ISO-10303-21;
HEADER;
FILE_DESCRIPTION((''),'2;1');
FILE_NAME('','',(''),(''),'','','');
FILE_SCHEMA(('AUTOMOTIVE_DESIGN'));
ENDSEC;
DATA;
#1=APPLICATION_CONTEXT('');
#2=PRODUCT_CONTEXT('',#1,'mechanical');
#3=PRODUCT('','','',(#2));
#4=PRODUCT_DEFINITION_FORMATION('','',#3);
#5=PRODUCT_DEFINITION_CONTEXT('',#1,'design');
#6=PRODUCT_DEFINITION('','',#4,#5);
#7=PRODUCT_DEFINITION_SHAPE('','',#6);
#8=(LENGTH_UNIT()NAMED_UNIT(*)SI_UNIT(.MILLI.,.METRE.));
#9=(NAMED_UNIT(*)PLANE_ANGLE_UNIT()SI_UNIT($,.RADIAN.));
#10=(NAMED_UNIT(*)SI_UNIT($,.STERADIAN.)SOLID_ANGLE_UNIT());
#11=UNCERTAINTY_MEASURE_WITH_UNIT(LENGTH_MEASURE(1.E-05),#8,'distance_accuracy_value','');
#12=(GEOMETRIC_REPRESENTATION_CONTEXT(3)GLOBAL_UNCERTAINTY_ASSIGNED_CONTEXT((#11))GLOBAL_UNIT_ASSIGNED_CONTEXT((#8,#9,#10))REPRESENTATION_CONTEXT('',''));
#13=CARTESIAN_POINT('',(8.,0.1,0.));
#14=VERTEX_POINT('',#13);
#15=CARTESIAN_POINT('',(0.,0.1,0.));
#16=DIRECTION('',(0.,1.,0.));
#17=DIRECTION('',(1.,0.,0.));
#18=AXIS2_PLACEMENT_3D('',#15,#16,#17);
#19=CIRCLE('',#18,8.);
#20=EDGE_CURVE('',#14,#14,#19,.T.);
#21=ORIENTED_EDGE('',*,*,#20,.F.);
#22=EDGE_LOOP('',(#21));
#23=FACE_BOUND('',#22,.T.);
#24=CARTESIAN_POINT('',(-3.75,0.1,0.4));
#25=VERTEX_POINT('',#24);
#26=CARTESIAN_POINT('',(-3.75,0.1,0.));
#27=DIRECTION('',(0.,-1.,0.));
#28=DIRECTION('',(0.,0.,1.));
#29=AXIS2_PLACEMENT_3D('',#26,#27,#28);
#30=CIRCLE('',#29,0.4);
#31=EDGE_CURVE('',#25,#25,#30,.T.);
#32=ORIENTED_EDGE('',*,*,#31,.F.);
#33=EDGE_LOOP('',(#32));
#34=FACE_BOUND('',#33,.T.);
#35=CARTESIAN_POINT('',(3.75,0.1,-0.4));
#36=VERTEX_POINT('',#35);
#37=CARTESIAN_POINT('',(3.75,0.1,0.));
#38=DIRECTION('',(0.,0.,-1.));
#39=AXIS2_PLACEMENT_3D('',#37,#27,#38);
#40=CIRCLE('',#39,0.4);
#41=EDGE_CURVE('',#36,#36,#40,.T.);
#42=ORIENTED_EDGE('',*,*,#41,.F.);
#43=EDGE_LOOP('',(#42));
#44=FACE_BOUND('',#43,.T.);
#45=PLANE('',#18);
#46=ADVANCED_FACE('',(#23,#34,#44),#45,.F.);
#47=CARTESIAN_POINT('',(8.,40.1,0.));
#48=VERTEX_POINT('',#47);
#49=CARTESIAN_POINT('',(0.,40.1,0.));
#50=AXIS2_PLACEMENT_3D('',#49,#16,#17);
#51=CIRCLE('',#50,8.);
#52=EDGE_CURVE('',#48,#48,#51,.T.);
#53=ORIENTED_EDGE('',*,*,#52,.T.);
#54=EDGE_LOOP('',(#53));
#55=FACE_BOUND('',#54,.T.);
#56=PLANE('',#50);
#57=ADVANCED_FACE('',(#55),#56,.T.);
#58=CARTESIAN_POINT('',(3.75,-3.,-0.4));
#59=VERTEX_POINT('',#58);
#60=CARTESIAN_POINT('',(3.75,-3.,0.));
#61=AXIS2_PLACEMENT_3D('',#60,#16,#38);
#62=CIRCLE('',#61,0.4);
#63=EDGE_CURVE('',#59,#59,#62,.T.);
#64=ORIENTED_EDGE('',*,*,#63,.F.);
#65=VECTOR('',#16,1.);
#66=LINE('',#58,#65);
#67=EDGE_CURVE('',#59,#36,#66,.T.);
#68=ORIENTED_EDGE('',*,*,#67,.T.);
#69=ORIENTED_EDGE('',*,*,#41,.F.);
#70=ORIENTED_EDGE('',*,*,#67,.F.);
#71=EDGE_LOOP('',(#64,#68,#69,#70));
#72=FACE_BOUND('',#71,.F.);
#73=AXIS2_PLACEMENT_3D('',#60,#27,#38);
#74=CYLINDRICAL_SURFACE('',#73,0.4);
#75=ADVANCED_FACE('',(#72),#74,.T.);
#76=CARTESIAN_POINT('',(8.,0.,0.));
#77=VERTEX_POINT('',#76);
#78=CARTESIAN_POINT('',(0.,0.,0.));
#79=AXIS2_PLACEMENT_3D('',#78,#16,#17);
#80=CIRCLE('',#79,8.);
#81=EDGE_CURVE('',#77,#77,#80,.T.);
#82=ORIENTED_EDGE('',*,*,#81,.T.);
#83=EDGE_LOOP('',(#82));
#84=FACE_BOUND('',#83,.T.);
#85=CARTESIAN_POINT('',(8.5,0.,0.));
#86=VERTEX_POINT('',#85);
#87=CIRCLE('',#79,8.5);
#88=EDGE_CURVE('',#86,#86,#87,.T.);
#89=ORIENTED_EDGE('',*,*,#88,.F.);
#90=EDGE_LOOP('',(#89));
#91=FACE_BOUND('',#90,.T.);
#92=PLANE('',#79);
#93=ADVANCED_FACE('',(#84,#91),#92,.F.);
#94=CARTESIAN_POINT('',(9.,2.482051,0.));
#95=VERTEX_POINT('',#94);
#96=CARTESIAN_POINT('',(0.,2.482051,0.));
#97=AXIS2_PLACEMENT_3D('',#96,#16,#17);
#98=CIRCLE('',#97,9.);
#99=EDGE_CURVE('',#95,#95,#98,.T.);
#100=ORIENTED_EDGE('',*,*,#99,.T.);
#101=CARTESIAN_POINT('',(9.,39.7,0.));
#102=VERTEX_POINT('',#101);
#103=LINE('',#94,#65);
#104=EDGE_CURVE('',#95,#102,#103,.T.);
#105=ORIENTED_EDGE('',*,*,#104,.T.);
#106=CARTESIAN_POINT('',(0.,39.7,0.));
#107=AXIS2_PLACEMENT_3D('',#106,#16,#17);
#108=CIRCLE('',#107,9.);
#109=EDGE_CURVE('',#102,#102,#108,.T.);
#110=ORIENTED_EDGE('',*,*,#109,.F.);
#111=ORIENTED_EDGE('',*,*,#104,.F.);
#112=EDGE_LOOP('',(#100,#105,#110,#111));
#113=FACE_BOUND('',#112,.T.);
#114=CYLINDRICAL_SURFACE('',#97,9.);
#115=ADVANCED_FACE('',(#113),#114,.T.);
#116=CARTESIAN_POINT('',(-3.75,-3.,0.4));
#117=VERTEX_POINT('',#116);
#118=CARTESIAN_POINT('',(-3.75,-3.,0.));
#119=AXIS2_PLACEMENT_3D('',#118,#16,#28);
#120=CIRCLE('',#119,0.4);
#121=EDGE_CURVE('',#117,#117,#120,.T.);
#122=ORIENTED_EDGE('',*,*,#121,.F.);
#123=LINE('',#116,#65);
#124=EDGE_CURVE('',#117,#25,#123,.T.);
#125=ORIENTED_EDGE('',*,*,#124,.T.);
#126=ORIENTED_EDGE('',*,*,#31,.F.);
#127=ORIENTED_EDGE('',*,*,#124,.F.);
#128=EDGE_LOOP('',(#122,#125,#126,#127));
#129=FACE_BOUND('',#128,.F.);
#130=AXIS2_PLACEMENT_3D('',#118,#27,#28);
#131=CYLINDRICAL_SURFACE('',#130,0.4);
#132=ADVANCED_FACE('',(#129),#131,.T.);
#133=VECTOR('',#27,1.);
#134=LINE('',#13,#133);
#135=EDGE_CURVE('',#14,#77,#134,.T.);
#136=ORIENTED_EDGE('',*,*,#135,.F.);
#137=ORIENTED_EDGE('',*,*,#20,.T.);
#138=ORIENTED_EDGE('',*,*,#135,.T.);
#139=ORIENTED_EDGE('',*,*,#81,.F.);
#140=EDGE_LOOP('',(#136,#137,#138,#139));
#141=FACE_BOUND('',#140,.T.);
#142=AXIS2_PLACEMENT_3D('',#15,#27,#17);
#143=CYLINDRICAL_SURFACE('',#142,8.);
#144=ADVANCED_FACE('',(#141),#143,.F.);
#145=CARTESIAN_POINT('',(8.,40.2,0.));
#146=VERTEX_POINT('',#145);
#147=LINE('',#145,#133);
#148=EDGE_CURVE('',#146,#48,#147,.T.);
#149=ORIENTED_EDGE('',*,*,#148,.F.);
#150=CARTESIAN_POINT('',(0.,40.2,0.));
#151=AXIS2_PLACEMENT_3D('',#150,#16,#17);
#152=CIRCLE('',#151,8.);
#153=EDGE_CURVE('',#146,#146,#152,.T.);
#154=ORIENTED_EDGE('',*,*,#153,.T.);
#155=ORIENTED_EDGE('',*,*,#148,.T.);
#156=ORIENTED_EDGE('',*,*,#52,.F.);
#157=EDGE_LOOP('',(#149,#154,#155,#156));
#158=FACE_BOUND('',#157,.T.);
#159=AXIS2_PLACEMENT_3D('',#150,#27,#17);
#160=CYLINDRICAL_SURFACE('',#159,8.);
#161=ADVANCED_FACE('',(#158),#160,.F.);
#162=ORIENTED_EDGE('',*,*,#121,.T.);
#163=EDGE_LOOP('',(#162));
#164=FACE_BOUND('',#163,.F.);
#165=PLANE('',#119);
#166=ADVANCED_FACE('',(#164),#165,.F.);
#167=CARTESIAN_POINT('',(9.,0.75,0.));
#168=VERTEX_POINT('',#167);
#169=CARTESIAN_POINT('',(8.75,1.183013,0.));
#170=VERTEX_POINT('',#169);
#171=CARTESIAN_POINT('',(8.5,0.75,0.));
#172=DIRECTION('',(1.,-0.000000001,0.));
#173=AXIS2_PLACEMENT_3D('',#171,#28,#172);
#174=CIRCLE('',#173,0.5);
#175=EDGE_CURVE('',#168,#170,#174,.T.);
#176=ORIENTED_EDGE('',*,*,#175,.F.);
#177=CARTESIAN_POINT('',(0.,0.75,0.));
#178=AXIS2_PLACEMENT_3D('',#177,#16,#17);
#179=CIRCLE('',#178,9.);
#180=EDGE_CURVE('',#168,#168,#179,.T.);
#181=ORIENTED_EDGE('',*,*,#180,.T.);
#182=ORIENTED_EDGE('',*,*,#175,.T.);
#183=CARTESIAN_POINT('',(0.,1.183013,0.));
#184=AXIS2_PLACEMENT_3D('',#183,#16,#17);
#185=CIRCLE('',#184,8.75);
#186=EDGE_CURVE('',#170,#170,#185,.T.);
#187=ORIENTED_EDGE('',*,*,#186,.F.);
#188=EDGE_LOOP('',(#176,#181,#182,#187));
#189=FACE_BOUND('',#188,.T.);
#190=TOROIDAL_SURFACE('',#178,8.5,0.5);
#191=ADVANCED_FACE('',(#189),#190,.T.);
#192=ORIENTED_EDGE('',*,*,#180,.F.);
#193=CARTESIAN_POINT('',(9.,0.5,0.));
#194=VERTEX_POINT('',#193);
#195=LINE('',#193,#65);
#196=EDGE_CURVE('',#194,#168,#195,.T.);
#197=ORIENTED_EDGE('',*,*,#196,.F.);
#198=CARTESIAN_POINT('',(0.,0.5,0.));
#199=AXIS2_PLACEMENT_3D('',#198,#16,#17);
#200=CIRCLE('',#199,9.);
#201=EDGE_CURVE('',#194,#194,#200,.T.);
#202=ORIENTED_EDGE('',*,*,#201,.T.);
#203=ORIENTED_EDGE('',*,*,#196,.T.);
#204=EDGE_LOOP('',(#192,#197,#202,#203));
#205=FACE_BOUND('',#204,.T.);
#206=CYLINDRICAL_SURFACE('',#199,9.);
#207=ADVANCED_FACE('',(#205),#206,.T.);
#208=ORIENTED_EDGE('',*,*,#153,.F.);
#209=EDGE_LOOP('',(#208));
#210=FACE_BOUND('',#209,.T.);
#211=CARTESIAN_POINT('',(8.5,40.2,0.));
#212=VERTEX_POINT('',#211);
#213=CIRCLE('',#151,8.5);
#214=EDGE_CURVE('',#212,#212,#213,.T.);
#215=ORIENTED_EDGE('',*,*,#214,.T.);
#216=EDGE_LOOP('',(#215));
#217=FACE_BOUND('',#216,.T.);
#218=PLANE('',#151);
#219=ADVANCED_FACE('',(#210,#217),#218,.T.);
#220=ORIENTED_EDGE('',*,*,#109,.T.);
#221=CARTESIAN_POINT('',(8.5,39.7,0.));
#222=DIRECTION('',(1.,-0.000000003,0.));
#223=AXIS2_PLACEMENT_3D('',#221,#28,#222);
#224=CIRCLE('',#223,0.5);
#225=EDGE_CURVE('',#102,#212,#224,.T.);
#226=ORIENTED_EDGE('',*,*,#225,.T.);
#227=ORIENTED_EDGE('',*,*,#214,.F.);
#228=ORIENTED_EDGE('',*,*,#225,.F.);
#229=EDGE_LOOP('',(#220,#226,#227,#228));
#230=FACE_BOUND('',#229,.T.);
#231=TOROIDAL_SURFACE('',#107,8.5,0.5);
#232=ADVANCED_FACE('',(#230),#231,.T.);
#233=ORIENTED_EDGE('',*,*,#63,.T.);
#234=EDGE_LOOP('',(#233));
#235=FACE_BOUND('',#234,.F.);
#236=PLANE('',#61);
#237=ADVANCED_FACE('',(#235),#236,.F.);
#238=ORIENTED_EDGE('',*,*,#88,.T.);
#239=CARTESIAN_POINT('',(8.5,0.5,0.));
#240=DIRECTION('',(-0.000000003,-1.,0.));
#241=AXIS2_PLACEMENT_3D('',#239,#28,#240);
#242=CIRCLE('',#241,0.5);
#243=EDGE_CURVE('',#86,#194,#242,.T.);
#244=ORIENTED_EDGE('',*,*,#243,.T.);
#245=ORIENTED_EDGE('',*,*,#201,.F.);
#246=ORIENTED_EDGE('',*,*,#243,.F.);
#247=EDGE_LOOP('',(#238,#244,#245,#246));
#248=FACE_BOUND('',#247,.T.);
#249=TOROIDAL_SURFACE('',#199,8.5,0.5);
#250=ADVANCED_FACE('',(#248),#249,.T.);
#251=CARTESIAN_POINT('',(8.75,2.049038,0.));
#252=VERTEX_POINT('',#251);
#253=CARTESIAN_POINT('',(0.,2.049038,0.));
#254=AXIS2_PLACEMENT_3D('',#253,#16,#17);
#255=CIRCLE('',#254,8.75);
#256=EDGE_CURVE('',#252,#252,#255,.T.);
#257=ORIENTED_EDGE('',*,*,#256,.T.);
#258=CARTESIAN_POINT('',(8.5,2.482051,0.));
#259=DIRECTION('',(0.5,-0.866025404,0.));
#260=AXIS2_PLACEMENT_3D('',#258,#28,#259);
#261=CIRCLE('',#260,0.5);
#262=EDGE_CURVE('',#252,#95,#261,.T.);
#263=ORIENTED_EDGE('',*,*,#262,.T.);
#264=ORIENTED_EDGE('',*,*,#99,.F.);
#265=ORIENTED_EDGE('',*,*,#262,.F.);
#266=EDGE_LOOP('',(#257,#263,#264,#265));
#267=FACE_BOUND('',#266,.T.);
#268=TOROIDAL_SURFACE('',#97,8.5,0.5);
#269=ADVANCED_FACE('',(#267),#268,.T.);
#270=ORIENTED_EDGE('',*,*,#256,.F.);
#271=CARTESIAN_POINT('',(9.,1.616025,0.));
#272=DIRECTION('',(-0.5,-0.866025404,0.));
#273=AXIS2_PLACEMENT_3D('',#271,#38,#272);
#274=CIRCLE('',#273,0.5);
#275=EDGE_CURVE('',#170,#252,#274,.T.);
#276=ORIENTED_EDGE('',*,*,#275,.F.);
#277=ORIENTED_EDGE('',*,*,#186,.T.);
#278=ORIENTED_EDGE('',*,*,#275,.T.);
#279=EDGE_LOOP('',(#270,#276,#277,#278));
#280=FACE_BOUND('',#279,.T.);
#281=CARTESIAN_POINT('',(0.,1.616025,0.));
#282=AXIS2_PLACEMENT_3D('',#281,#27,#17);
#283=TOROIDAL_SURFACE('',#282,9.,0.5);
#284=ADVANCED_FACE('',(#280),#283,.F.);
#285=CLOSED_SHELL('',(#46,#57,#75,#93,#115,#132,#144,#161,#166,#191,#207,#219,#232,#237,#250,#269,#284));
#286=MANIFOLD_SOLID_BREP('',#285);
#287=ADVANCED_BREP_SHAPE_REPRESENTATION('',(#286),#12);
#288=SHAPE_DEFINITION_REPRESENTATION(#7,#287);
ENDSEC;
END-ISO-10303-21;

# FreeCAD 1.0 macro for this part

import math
import FreeCAD as App
import Part
import Sketcher
from FreeCAD import Vector

doc = App.newDocument("Part")
body = doc.addObject("PartDesign::Body", "Body")

sketch1 = doc.addObject("Sketcher::SketchObject", "Sketch")
body.addObject(sketch1)
sketch1.AttachmentSupport = (doc.XZ_Plane, [""])
sketch1.MapMode = "FlatFace"
sketch1.addGeometry(Part.Circle(Vector(-3.75, 0, 0), Vector(0, 0, 1), 0.4), False)
sketch1.addConstraint([
    Sketcher.Constraint("PointOnObject", 0, 3, -1),
    Sketcher.Constraint("Diameter", 0, 0.8),
    Sketcher.Constraint("DistanceX", 0, 3, -1, 1, 3.75),
])
pad1 = doc.addObject("PartDesign::Pad", "Pad")
body.addObject(pad1)
pad1.Profile = sketch1
pad1.Type = "TwoLengths"
pad1.Length = 1
pad1.Length2 = 3
pad1.Reversed = True
body2 = doc.addObject("PartDesign::Body", "Body001")

sketch2 = doc.addObject("Sketcher::SketchObject", "Sketch001")
body2.addObject(sketch2)
sketch2.AttachmentSupport = (doc.getObject("XZ_Plane001"), [""])
sketch2.MapMode = "FlatFace"
sketch2.addGeometry(Part.Circle(Vector(3.75, 0, 0), Vector(0, 0, 1), 0.4), False)
sketch2.addConstraint([
    Sketcher.Constraint("PointOnObject", 0, 3, -1),
    Sketcher.Constraint("Diameter", 0, 0.8),
    Sketcher.Constraint("DistanceX", -1, 1, 0, 3, 3.75),
])
pad2 = doc.addObject("PartDesign::Pad", "Pad001")
body2.addObject(pad2)
pad2.Profile = sketch2
pad2.Type = "TwoLengths"
pad2.Length = 1
pad2.Length2 = 3
pad2.Reversed = True
body.AllowCompound = True
doc.recompute()

boolean = doc.addObject("PartDesign::Boolean", "Boolean")
body.addObject(boolean)
boolean.Type = "Fuse"
boolean.addObjects([body2])

sketch3 = doc.addObject("Sketcher::SketchObject", "Sketch002")
body.addObject(sketch3)
sketch3.AttachmentSupport = (doc.XY_Plane, [""])
sketch3.MapMode = "FlatFace"
sketch3.addGeometry([
    Part.LineSegment(Vector(9, 0.5, 0), Vector(9, 0.75, 0)),
    Part.ArcOfCircle(Part.Circle(Vector(8.5, 0.75, 0), Vector(0, 0, 1), 0.5), math.radians(0), math.radians(60)),
    Part.ArcOfCircle(Part.Circle(Vector(9, 1.616025, 0), Vector(0, 0, 1), 0.5), math.radians(120), math.radians(240)),
    Part.ArcOfCircle(Part.Circle(Vector(8.5, 2.482051, 0), Vector(0, 0, 1), 0.5), math.radians(-60), math.radians(0)),
    Part.LineSegment(Vector(9, 2.482051, 0), Vector(9, 39.7, 0)),
    Part.ArcOfCircle(Part.Circle(Vector(8.5, 39.7, 0), Vector(0, 0, 1), 0.5), math.radians(0), math.radians(90)),
    Part.LineSegment(Vector(8.5, 40.2, 0), Vector(8, 40.2, 0)),
    Part.LineSegment(Vector(8, 40.2, 0), Vector(8, 40.1, 0)),
    Part.LineSegment(Vector(8, 40.1, 0), Vector(0, 40.1, 0)),
    Part.LineSegment(Vector(0, 40.1, 0), Vector(0, 0.1, 0)),
    Part.LineSegment(Vector(0, 0.1, 0), Vector(8, 0.1, 0)),
    Part.LineSegment(Vector(8, 0.1, 0), Vector(8, 0, 0)),
    Part.LineSegment(Vector(8, 0, 0), Vector(8.5, 0, 0)),
    Part.ArcOfCircle(Part.Circle(Vector(8.5, 0.5, 0), Vector(0, 0, 1), 0.5), math.radians(-90), math.radians(0)),
], False)
sketch3.addConstraint([
    Sketcher.Constraint("Tangent", 0, 2, 1, 1),
    Sketcher.Constraint("Tangent", 1, 2, 2, 2),
    Sketcher.Constraint("Tangent", 2, 1, 3, 1),
    Sketcher.Constraint("Tangent", 3, 2, 4, 1),
    Sketcher.Constraint("Tangent", 4, 2, 5, 1),
    Sketcher.Constraint("Tangent", 5, 2, 6, 1),
    Sketcher.Constraint("Coincident", 6, 2, 7, 1),
    Sketcher.Constraint("Coincident", 7, 2, 8, 1),
    Sketcher.Constraint("Coincident", 8, 2, 9, 1),
    Sketcher.Constraint("Coincident", 9, 2, 10, 1),
    Sketcher.Constraint("Coincident", 10, 2, 11, 1),
    Sketcher.Constraint("Coincident", 11, 2, 12, 1),
    Sketcher.Constraint("Tangent", 12, 2, 13, 1),
    Sketcher.Constraint("Tangent", 13, 2, 0, 1),
    Sketcher.Constraint("Vertical", 0),
    Sketcher.Constraint("Vertical", 4),
    Sketcher.Constraint("Horizontal", 6),
    Sketcher.Constraint("Vertical", 7),
    Sketcher.Constraint("Horizontal", 8),
    Sketcher.Constraint("Vertical", 9),
    Sketcher.Constraint("Horizontal", 10),
    Sketcher.Constraint("Vertical", 11),
    Sketcher.Constraint("Horizontal", 12),
    Sketcher.Constraint("Equal", 1, 2),
    Sketcher.Constraint("Equal", 2, 3),
    Sketcher.Constraint("Equal", 3, 5),
    Sketcher.Constraint("Equal", 5, 13),
    Sketcher.Constraint("PointOnObject", 8, 2, -2),
    Sketcher.Constraint("PointOnObject", 11, 2, -1),
    Sketcher.Constraint("Vertical", 1, 3, 3, 3),
    Sketcher.Constraint("Vertical", 2, 3, 0, 2),
    Sketcher.Constraint("Vertical", 7, 2, 10, 2),
    Sketcher.Constraint("Equal", 7, 11),
    Sketcher.Constraint("Radius", 1, 0.5),
    Sketcher.Constraint("DistanceX", 8, 2, 8, 1, 8.0),
    Sketcher.Constraint("DistanceY", 9, 2, 9, 1, 40.0),
    Sketcher.Constraint("DistanceX", 6, 2, 6, 1, 0.5),
    Sketcher.Constraint("DistanceY", 7, 2, 7, 1, 0.1),
    Sketcher.Constraint("DistanceY", 0, 1, 0, 2, 0.25),
])
revolution = doc.addObject("PartDesign::Revolution", "Revolution")
body.addObject(revolution)
revolution.Profile = sketch3
revolution.ReferenceAxis = (sketch3, ["V_Axis"])
revolution.Angle = 360

doc.recompute()
